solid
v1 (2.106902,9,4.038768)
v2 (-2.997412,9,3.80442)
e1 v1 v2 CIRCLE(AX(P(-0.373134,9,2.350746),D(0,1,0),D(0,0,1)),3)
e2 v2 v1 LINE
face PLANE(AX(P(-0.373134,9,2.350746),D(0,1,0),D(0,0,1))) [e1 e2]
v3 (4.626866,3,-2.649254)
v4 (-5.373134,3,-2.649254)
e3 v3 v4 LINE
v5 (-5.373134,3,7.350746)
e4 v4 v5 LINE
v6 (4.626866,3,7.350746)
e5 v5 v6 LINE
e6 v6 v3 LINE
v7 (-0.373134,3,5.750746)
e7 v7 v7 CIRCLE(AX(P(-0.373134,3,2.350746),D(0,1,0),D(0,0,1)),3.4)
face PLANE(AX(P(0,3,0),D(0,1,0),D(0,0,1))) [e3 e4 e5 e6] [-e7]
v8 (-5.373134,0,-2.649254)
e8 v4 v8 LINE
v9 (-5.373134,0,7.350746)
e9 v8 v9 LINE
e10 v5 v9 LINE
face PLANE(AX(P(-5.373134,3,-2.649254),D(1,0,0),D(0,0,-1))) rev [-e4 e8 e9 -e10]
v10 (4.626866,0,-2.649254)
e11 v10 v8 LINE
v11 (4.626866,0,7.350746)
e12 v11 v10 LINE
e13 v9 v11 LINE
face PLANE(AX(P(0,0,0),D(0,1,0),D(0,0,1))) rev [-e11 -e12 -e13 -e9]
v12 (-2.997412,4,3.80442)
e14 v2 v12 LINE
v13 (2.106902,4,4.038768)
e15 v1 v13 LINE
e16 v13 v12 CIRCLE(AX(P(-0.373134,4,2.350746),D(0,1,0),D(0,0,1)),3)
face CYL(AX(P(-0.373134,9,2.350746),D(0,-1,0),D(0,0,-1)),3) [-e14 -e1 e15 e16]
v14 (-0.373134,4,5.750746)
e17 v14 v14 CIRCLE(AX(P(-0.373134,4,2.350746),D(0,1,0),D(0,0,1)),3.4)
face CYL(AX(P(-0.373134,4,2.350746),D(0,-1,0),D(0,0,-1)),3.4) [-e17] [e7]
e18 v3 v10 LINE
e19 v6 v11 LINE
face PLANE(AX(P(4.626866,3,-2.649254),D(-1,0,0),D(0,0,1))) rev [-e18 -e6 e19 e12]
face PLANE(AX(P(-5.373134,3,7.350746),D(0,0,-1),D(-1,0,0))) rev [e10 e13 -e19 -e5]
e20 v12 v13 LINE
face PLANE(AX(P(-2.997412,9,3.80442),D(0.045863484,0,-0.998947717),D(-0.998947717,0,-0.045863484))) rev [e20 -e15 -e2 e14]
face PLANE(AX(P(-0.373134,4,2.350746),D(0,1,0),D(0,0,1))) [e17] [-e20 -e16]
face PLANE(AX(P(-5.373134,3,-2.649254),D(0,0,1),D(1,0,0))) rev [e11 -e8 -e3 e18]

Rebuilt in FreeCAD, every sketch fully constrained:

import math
import FreeCAD as App
import Part
import Sketcher

V = App.Vector

doc = App.newDocument("Part")
body = doc.addObject("PartDesign::Body", "Body")

sketch1 = doc.addObject("Sketcher::SketchObject", "Sketch")
body.addObject(sketch1)
sketch1.AttachmentSupport = (doc.XZ_Plane, [""])
sketch1.MapMode = "FlatFace"
sketch1.addGeometry([
    Part.LineSegment(V(-5.373134, -2.649254, 0), V(-5.373134, 7.350746, 0)),
    Part.LineSegment(V(-5.373134, 7.350746, 0), V(4.626866, 7.350746, 0)),
    Part.LineSegment(V(4.626866, 7.350746, 0), V(4.626866, -2.649254, 0)),
    Part.LineSegment(V(4.626866, -2.649254, 0), V(-5.373134, -2.649254, 0)),
], False)
sketch1.addConstraint([
    Sketcher.Constraint("Coincident", 0, 2, 1, 1),
    Sketcher.Constraint("Coincident", 1, 2, 2, 1),
    Sketcher.Constraint("Coincident", 2, 2, 3, 1),
    Sketcher.Constraint("Coincident", 3, 2, 0, 1),
    Sketcher.Constraint("Vertical", 0),
    Sketcher.Constraint("Horizontal", 1),
    Sketcher.Constraint("Vertical", 2),
    Sketcher.Constraint("Horizontal", 3),
    Sketcher.Constraint("Equal", 3, 0),
    Sketcher.Constraint("DistanceX", 1, 1, 1, 2, 10.0),
    Sketcher.Constraint("DistanceX", 0, 2, -1, 1, 5.373134),
    Sketcher.Constraint("DistanceY", -1, 1, 0, 2, 7.350746),
])
pad1 = doc.addObject("PartDesign::Pad", "Pad")
body.addObject(pad1)
pad1.Profile = sketch1
pad1.Length = 3
pad1.Reversed = True

sketch2 = doc.addObject("Sketcher::SketchObject", "Sketch001")
body.addObject(sketch2)
sketch2.AttachmentSupport = (doc.XZ_Plane, [""])
sketch2.MapMode = "FlatFace"
sketch2.AttachmentOffset = App.Placement(V(0, 0, -3), App.Rotation())
sketch2.addGeometry(Part.Circle(V(-0.373134, 2.350746, 0), V(0, 0, 1), 3.4), False)
sketch2.addConstraint([
    Sketcher.Constraint("Diameter", 0, 6.8),
    Sketcher.Constraint("DistanceX", 0, 3, -1, 1, 0.373134),
    Sketcher.Constraint("DistanceY", -1, 1, 0, 3, 2.350746),
])
pad2 = doc.addObject("PartDesign::Pad", "Pad001")
body.addObject(pad2)
pad2.Profile = sketch2
pad2.Length = 1
pad2.Reversed = True

sketch3 = doc.addObject("Sketcher::SketchObject", "Sketch002")
body.addObject(sketch3)
sketch3.AttachmentSupport = (doc.XZ_Plane, [""])
sketch3.MapMode = "FlatFace"
sketch3.AttachmentOffset = App.Placement(V(0, 0, -4), App.Rotation())
sketch3.addGeometry([
    Part.LineSegment(V(-2.997412, 3.80442, 0), V(2.106902, 4.038768, 0)),
    Part.ArcOfCircle(Part.Circle(V(-0.373134, 2.350746, 0), V(0, 0, 1), 3), math.radians(151.016489), math.radians(394.240924)),
], False)
sketch3.addConstraint([
    Sketcher.Constraint("Coincident", 0, 1, 1, 1),
    Sketcher.Constraint("Coincident", 1, 2, 0, 2),
    Sketcher.Constraint("Radius", 1, 3.0),
    Sketcher.Constraint("Distance", 0, 5.109691),
    Sketcher.Constraint("DistanceX", 0, 1, -1, 1, 2.997412),
    Sketcher.Constraint("DistanceY", -1, 1, 0, 1, 3.80442),
    Sketcher.Constraint("DistanceY", -1, 1, 1, 2, 4.038768),
])
pad3 = doc.addObject("PartDesign::Pad", "Pad002")
body.addObject(pad3)
pad3.Profile = sketch3
pad3.Length = 5
pad3.Reversed = True

doc.recompute()
